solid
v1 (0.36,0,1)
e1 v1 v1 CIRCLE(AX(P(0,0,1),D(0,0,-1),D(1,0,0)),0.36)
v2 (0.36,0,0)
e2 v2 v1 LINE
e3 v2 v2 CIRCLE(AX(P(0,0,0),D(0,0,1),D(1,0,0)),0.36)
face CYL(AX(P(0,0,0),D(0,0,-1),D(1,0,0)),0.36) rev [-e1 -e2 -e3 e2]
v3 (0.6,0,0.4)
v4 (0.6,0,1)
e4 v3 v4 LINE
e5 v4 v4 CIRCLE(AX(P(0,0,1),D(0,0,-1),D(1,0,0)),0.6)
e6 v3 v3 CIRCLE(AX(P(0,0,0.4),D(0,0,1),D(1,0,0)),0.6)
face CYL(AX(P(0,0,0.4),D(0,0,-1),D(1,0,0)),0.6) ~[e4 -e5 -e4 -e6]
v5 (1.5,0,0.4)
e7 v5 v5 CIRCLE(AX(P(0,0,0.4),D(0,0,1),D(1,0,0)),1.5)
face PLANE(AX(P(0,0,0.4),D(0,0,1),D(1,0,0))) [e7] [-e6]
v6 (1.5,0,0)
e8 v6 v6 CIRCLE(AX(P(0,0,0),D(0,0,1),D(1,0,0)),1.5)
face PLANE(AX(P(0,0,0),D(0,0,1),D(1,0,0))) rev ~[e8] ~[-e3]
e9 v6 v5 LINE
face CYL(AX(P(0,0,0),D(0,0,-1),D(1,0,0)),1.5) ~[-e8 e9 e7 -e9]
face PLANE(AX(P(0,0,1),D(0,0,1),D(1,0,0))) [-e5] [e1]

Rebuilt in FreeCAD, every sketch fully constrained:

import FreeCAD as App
import Part
import Sketcher

V = App.Vector

doc = App.newDocument("Part")
params = doc.addObject("Spreadsheet::Sheet", "Params")
for row, (alias, value) in enumerate([
    ("sketch1_diameter", "3 mm"),
    ("sketch1_diameter2", "1.2 mm"),
    ("pad1_length", "2 mm"),
    ("sketch2_diameter", "0.72 mm"),
    ("pad2_length", "10 mm"),
    ("sketch3_diameter", "3 mm"),
    ("pad3_length", "1 mm"),
], start=1):
    params.set(f"A{row}", alias)
    params.set(f"B{row}", "=" + value)
    params.setAlias(f"B{row}", alias)

body = doc.addObject("PartDesign::Body", "Body")

sketch1 = body.newObject("Sketcher::SketchObject", "Sketch")
sketch1.AttachmentSupport = (doc.getObject("XY_Plane"), [""])
sketch1.MapMode = "FlatFace"
sketch1.AttachmentOffset = App.Placement(V(0, 0, 0.4), App.Rotation())
sketch1.addGeometry(Part.Circle(V(0, 0, 0), V(0, 0, 1), 1.5), False)
sketch1.addGeometry(Part.Circle(V(0, 0, 0), V(0, 0, 1), 0.6), False)
sketch1.addConstraint(Sketcher.Constraint("Coincident", 0, 3, -1, 1))
sketch1.addConstraint(Sketcher.Constraint("Coincident", 1, 3, -1, 1))
sketch1.addConstraint(Sketcher.Constraint("Diameter", 0, 3.0))
sketch1.addConstraint(Sketcher.Constraint("Diameter", 1, 1.2))
sketch1.setExpression("Constraints[2]", "Params.sketch1_diameter")
sketch1.setExpression("Constraints[3]", "Params.sketch1_diameter2")
pad1 = body.newObject("PartDesign::Pad", "Pad")
pad1.Profile = sketch1
pad1.setExpression("Length", "Params.pad1_length")
body2 = doc.addObject("PartDesign::Body", "Body001")

sketch2 = body2.newObject("Sketcher::SketchObject", "Sketch001")
sketch2.AttachmentSupport = (doc.getObject("XY_Plane001"), [""])
sketch2.MapMode = "FlatFace"
sketch2.addGeometry(Part.Circle(V(0, 0, 0), V(0, 0, 1), 0.36), False)
sketch2.addConstraint(Sketcher.Constraint("Coincident", 0, 3, -1, 1))
sketch2.addConstraint(Sketcher.Constraint("Diameter", 0, 0.72))
sketch2.setExpression("Constraints[1]", "Params.sketch2_diameter")
pad2 = body2.newObject("PartDesign::Pad", "Pad001")
pad2.Profile = sketch2
pad2.setExpression("Length", "Params.pad2_length")
body3 = doc.addObject("PartDesign::Body", "Body002")

sketch3 = body3.newObject("Sketcher::SketchObject", "Sketch002")
sketch3.AttachmentSupport = (doc.getObject("XY_Plane002"), [""])
sketch3.MapMode = "FlatFace"
sketch3.addGeometry(Part.Circle(V(0, 0, 0), V(0, 0, 1), 1.5), False)
sketch3.addConstraint(Sketcher.Constraint("Coincident", 0, 3, -1, 1))
sketch3.addConstraint(Sketcher.Constraint("Diameter", 0, 3.0))
sketch3.setExpression("Constraints[1]", "Params.sketch3_diameter")
pad3 = body3.newObject("PartDesign::Pad", "Pad002")
pad3.Profile = sketch3
pad3.setExpression("Length", "Params.pad3_length")
doc.recompute()

boolean = body3.newObject("PartDesign::Boolean", "Boolean")
boolean.Type = "Cut"
boolean.addObjects([body2])
doc.recompute()

boolean2 = body3.newObject("PartDesign::Boolean", "Boolean001")
boolean2.Type = "Cut"
boolean2.addObjects([body])

doc.recompute()
